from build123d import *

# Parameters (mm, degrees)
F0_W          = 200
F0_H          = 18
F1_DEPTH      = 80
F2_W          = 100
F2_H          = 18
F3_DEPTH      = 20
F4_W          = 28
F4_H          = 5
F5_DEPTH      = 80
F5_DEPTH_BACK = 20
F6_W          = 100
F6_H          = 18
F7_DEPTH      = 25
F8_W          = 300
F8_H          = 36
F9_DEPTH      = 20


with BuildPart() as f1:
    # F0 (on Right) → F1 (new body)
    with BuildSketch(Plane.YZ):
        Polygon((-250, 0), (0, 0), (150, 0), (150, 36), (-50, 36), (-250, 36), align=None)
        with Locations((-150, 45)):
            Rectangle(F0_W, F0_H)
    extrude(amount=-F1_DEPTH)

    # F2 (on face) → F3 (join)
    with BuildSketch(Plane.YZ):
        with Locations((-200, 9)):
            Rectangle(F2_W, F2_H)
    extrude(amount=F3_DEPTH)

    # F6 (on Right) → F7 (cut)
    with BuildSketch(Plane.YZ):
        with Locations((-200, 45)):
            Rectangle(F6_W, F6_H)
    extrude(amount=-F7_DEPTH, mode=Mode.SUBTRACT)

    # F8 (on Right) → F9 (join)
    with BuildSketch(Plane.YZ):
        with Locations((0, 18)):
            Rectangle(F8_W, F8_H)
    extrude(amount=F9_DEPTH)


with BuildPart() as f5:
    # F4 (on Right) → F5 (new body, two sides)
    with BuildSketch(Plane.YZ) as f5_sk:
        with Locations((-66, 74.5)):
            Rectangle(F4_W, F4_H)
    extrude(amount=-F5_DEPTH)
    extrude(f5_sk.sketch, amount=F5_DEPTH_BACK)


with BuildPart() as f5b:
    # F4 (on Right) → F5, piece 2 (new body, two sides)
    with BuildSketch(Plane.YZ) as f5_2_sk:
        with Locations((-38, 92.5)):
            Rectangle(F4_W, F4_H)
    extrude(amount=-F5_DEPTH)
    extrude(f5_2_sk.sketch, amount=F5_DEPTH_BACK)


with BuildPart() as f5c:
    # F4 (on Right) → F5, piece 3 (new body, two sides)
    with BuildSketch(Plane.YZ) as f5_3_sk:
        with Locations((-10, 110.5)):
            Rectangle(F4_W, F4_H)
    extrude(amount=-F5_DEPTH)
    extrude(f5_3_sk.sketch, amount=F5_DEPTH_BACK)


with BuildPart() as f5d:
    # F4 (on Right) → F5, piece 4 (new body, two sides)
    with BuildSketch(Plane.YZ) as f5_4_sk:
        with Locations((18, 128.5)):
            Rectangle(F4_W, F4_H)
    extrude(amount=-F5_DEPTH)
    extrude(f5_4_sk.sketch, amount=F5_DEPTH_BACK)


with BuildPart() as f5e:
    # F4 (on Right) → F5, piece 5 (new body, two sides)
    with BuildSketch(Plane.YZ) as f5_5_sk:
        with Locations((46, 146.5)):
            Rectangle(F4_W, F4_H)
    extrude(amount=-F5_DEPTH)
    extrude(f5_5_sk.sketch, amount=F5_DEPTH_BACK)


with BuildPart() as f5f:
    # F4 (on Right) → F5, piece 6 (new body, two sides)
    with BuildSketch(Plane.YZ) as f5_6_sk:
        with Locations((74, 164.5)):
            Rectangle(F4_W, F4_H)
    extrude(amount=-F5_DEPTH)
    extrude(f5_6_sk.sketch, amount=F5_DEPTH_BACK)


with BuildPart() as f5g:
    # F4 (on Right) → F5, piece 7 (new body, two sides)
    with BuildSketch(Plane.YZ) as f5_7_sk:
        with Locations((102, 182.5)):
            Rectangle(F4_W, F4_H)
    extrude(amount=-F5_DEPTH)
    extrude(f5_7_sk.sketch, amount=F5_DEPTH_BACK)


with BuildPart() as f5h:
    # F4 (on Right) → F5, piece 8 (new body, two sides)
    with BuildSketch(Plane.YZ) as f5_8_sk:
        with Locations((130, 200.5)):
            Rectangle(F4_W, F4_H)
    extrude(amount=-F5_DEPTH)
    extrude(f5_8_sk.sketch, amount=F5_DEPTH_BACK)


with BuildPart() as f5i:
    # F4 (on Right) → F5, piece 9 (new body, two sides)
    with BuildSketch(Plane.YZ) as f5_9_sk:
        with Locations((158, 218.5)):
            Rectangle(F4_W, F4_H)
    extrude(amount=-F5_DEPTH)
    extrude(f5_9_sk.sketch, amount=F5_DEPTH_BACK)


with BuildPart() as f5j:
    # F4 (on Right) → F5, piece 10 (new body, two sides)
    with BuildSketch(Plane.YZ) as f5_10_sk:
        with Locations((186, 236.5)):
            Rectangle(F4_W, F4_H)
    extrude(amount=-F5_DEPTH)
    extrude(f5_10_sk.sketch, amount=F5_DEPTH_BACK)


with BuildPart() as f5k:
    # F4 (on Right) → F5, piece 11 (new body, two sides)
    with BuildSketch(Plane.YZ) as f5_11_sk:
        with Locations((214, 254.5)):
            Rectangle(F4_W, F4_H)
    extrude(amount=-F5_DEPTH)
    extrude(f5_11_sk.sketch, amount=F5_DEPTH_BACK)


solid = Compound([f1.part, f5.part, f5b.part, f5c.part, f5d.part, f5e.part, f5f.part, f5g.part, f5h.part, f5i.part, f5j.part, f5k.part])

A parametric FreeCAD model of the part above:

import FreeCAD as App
import Part
import Sketcher

doc = App.newDocument("Part")
body = doc.addObject("PartDesign::Body", "Body")

# Sketch on YZ plane
sketch1 = body.newObject("Sketcher::SketchObject", "Sketch")
sketch1.AttachmentSupport = (doc.getObject("YZ_Plane"), [""])
sketch1.MapMode = "FlatFace"
sketch1.addGeometry([
    Part.LineSegment(App.Vector(-250, 0, 0), App.Vector(150, 0, 0)),  # 0
    Part.LineSegment(App.Vector(150, 0, 0), App.Vector(150, 36, 0)),  # 1
    Part.LineSegment(App.Vector(150, 36, 0), App.Vector(-50, 36, 0)),  # 2
    Part.LineSegment(App.Vector(-50, 36, 0), App.Vector(-50, 54, 0)),  # 3
    Part.LineSegment(App.Vector(-50, 54, 0), App.Vector(-250, 54, 0)),  # 4
    Part.LineSegment(App.Vector(-250, 54, 0), App.Vector(-250, 0, 0)),  # 5
], False)
sketch1.addConstraint([
    Sketcher.Constraint("Coincident", 0, 2, 1, 1),
    Sketcher.Constraint("Coincident", 1, 2, 2, 1),
    Sketcher.Constraint("Coincident", 2, 2, 3, 1),
    Sketcher.Constraint("Coincident", 3, 2, 4, 1),
    Sketcher.Constraint("Coincident", 4, 2, 5, 1),
    Sketcher.Constraint("Coincident", 5, 2, 0, 1),
    Sketcher.Constraint("Horizontal", 0),
    Sketcher.Constraint("Vertical", 1),
    Sketcher.Constraint("Horizontal", 2),
    Sketcher.Constraint("Vertical", 3),
    Sketcher.Constraint("Horizontal", 4),
    Sketcher.Constraint("Vertical", 5),
    Sketcher.Constraint("PointOnObject", 0, 2, -1),
    Sketcher.Constraint("Equal", 2, 4),
    Sketcher.Constraint("DistanceX", 0, 1, 0, 2, 400.0),
    Sketcher.Constraint("DistanceY", 1, 1, 1, 2, 36.0),
    Sketcher.Constraint("DistanceY", 3, 1, 3, 2, 18.0),
    Sketcher.Constraint("DistanceX", -1, 1, 0, 2, 150.0),
])
pad1 = body.newObject("PartDesign::Pad", "Pad")
pad1.Profile = sketch1
pad1.Length = 80
pad1.Reversed = True

# Sketch on YZ plane
sketch2 = body.newObject("Sketcher::SketchObject", "Sketch001")
sketch2.AttachmentSupport = (doc.getObject("YZ_Plane"), [""])
sketch2.MapMode = "FlatFace"
sketch2.addGeometry([
    Part.LineSegment(App.Vector(-250, 18, 0), App.Vector(-250, 0, 0)),
    Part.LineSegment(App.Vector(-250, 0, 0), App.Vector(-150, 0, 0)),
    Part.LineSegment(App.Vector(-150, 0, 0), App.Vector(-150, 18, 0)),
    Part.LineSegment(App.Vector(-150, 18, 0), App.Vector(-250, 18, 0)),
], False)
sketch2.addConstraint([
    Sketcher.Constraint("Coincident", 0, 2, 1, 1),
    Sketcher.Constraint("Coincident", 1, 2, 2, 1),
    Sketcher.Constraint("Coincident", 2, 2, 3, 1),
    Sketcher.Constraint("Coincident", 3, 2, 0, 1),
    Sketcher.Constraint("Vertical", 0),
    Sketcher.Constraint("Horizontal", 1),
    Sketcher.Constraint("Vertical", 2),
    Sketcher.Constraint("Horizontal", 3),
    Sketcher.Constraint("PointOnObject", 0, 2, -1),
    Sketcher.Constraint("DistanceX", 1, 1, 1, 2, 100.0),
    Sketcher.Constraint("DistanceY", 0, 2, 0, 1, 18.0),
    Sketcher.Constraint("DistanceX", 0, 2, -1, 1, 250.0),
])
pad2 = body.newObject("PartDesign::Pad", "Pad001")
pad2.Profile = sketch2
pad2.Length = 20

# Sketch on YZ plane
sketch3 = body.newObject("Sketcher::SketchObject", "Sketch002")
sketch3.AttachmentSupport = (doc.getObject("YZ_Plane"), [""])
sketch3.MapMode = "FlatFace"
sketch3.addGeometry([
    Part.LineSegment(App.Vector(-250, 54, 0), App.Vector(-250, 36, 0)),
    Part.LineSegment(App.Vector(-250, 36, 0), App.Vector(-150, 36, 0)),
    Part.LineSegment(App.Vector(-150, 36, 0), App.Vector(-150, 54, 0)),
    Part.LineSegment(App.Vector(-150, 54, 0), App.Vector(-250, 54, 0)),
], False)
sketch3.addConstraint([
    Sketcher.Constraint("Coincident", 0, 2, 1, 1),
    Sketcher.Constraint("Coincident", 1, 2, 2, 1),
    Sketcher.Constraint("Coincident", 2, 2, 3, 1),
    Sketcher.Constraint("Coincident", 3, 2, 0, 1),
    Sketcher.Constraint("Vertical", 0),
    Sketcher.Constraint("Horizontal", 1),
    Sketcher.Constraint("Vertical", 2),
    Sketcher.Constraint("Horizontal", 3),
    Sketcher.Constraint("DistanceX", 1, 1, 1, 2, 100.0),
    Sketcher.Constraint("DistanceY", 0, 2, 0, 1, 18.0),
    Sketcher.Constraint("DistanceX", 0, 2, -1, 1, 250.0),
    Sketcher.Constraint("DistanceY", -1, 1, 0, 2, 36.0),
])
pocket1 = body.newObject("PartDesign::Pocket", "Pocket")
pocket1.Profile = sketch3
pocket1.Length = 25

# Sketch on YZ plane
sketch4 = body.newObject("Sketcher::SketchObject", "Sketch003")
sketch4.AttachmentSupport = (doc.getObject("YZ_Plane"), [""])
sketch4.MapMode = "FlatFace"
sketch4.addGeometry([
    Part.LineSegment(App.Vector(-150, 36, 0), App.Vector(-150, 0, 0)),
    Part.LineSegment(App.Vector(-150, 0, 0), App.Vector(150, 0, 0)),
    Part.LineSegment(App.Vector(150, 0, 0), App.Vector(150, 36, 0)),
    Part.LineSegment(App.Vector(150, 36, 0), App.Vector(-150, 36, 0)),
], False)
sketch4.addConstraint([
    Sketcher.Constraint("Coincident", 0, 2, 1, 1),
    Sketcher.Constraint("Coincident", 1, 2, 2, 1),
    Sketcher.Constraint("Coincident", 2, 2, 3, 1),
    Sketcher.Constraint("Coincident", 3, 2, 0, 1),
    Sketcher.Constraint("Vertical", 0),
    Sketcher.Constraint("Horizontal", 1),
    Sketcher.Constraint("Vertical", 2),
    Sketcher.Constraint("Horizontal", 3),
    Sketcher.Constraint("Symmetric", 0, 2, 1, 2, -1, 1),
    Sketcher.Constraint("DistanceX", 1, 1, 1, 2, 300.0),
    Sketcher.Constraint("DistanceY", 0, 2, 0, 1, 36.0),
])
pad3 = body.newObject("PartDesign::Pad", "Pad002")
pad3.Profile = sketch4
pad3.Length = 20
body2 = doc.addObject("PartDesign::Body", "Body001")

# Sketch on YZ plane
sketch5 = body2.newObject("Sketcher::SketchObject", "Sketch004")
sketch5.AttachmentSupport = (doc.getObject("YZ_Plane001"), [""])
sketch5.MapMode = "FlatFace"
sketch5.addGeometry([
    Part.LineSegment(App.Vector(-80, 77, 0), App.Vector(-80, 72, 0)),
    Part.LineSegment(App.Vector(-80, 72, 0), App.Vector(-52, 72, 0)),
    Part.LineSegment(App.Vector(-52, 72, 0), App.Vector(-52, 77, 0)),
    Part.LineSegment(App.Vector(-52, 77, 0), App.Vector(-80, 77, 0)),
], False)
sketch5.addConstraint([
    Sketcher.Constraint("Coincident", 0, 2, 1, 1),
    Sketcher.Constraint("Coincident", 1, 2, 2, 1),
    Sketcher.Constraint("Coincident", 2, 2, 3, 1),
    Sketcher.Constraint("Coincident", 3, 2, 0, 1),
    Sketcher.Constraint("Vertical", 0),
    Sketcher.Constraint("Horizontal", 1),
    Sketcher.Constraint("Vertical", 2),
    Sketcher.Constraint("Horizontal", 3),
    Sketcher.Constraint("DistanceX", 1, 1, 1, 2, 28.0),
    Sketcher.Constraint("DistanceY", 0, 2, 0, 1, 5.0),
    Sketcher.Constraint("DistanceX", 0, 2, -1, 1, 80.0),
    Sketcher.Constraint("DistanceY", -1, 1, 0, 2, 72.0),
])
pad4 = body2.newObject("PartDesign::Pad", "Pad003")
pad4.Profile = sketch5
pad4.Type = "TwoLengths"
pad4.Length = 80
pad4.Length2 = 20
pad4.Reversed = True
body3 = doc.addObject("PartDesign::Body", "Body002")

# Sketch on YZ plane
sketch6 = body3.newObject("Sketcher::SketchObject", "Sketch005")
sketch6.AttachmentSupport = (doc.getObject("YZ_Plane002"), [""])
sketch6.MapMode = "FlatFace"
sketch6.addGeometry([
    Part.LineSegment(App.Vector(-52, 95, 0), App.Vector(-52, 90, 0)),
    Part.LineSegment(App.Vector(-52, 90, 0), App.Vector(-24, 90, 0)),
    Part.LineSegment(App.Vector(-24, 90, 0), App.Vector(-24, 95, 0)),
    Part.LineSegment(App.Vector(-24, 95, 0), App.Vector(-52, 95, 0)),
], False)
sketch6.addConstraint([
    Sketcher.Constraint("Coincident", 0, 2, 1, 1),
    Sketcher.Constraint("Coincident", 1, 2, 2, 1),
    Sketcher.Constraint("Coincident", 2, 2, 3, 1),
    Sketcher.Constraint("Coincident", 3, 2, 0, 1),
    Sketcher.Constraint("Vertical", 0),
    Sketcher.Constraint("Horizontal", 1),
    Sketcher.Constraint("Vertical", 2),
    Sketcher.Constraint("Horizontal", 3),
    Sketcher.Constraint("DistanceX", 1, 1, 1, 2, 28.0),
    Sketcher.Constraint("DistanceY", 0, 2, 0, 1, 5.0),
    Sketcher.Constraint("DistanceX", 0, 2, -1, 1, 52.0),
    Sketcher.Constraint("DistanceY", -1, 1, 0, 2, 90.0),
])
pad5 = body3.newObject("PartDesign::Pad", "Pad004")
pad5.Profile = sketch6
pad5.Type = "TwoLengths"
pad5.Length = 80
pad5.Length2 = 20
pad5.Reversed = True
body4 = doc.addObject("PartDesign::Body", "Body003")

# Sketch on YZ plane
sketch7 = body4.newObject("Sketcher::SketchObject", "Sketch006")
sketch7.AttachmentSupport = (doc.getObject("YZ_Plane003"), [""])
sketch7.MapMode = "FlatFace"
sketch7.addGeometry([
    Part.LineSegment(App.Vector(-24, 113, 0), App.Vector(-24, 108, 0)),
    Part.LineSegment(App.Vector(-24, 108, 0), App.Vector(4, 108, 0)),
    Part.LineSegment(App.Vector(4, 108, 0), App.Vector(4, 113, 0)),
    Part.LineSegment(App.Vector(4, 113, 0), App.Vector(-24, 113, 0)),
], False)
sketch7.addConstraint([
    Sketcher.Constraint("Coincident", 0, 2, 1, 1),
    Sketcher.Constraint("Coincident", 1, 2, 2, 1),
    Sketcher.Constraint("Coincident", 2, 2, 3, 1),
    Sketcher.Constraint("Coincident", 3, 2, 0, 1),
    Sketcher.Constraint("Vertical", 0),
    Sketcher.Constraint("Horizontal", 1),
    Sketcher.Constraint("Vertical", 2),
    Sketcher.Constraint("Horizontal", 3),
    Sketcher.Constraint("DistanceX", 1, 1, 1, 2, 28.0),
    Sketcher.Constraint("DistanceY", 0, 2, 0, 1, 5.0),
    Sketcher.Constraint("DistanceX", 0, 2, -1, 1, 24.0),
    Sketcher.Constraint("DistanceY", -1, 1, 0, 2, 108.0),
])
pad6 = body4.newObject("PartDesign::Pad", "Pad005")
pad6.Profile = sketch7
pad6.Type = "TwoLengths"
pad6.Length = 80
pad6.Length2 = 20
pad6.Reversed = True
body5 = doc.addObject("PartDesign::Body", "Body004")

# Sketch on YZ plane
sketch8 = body5.newObject("Sketcher::SketchObject", "Sketch007")
sketch8.AttachmentSupport = (doc.getObject("YZ_Plane004"), [""])
sketch8.MapMode = "FlatFace"
sketch8.addGeometry([
    Part.LineSegment(App.Vector(4, 131, 0), App.Vector(4, 126, 0)),
    Part.LineSegment(App.Vector(4, 126, 0), App.Vector(32, 126, 0)),
    Part.LineSegment(App.Vector(32, 126, 0), App.Vector(32, 131, 0)),
    Part.LineSegment(App.Vector(32, 131, 0), App.Vector(4, 131, 0)),
], False)
sketch8.addConstraint([
    Sketcher.Constraint("Coincident", 0, 2, 1, 1),
    Sketcher.Constraint("Coincident", 1, 2, 2, 1),
    Sketcher.Constraint("Coincident", 2, 2, 3, 1),
    Sketcher.Constraint("Coincident", 3, 2, 0, 1),
    Sketcher.Constraint("Vertical", 0),
    Sketcher.Constraint("Horizontal", 1),
    Sketcher.Constraint("Vertical", 2),
    Sketcher.Constraint("Horizontal", 3),
    Sketcher.Constraint("DistanceX", 1, 1, 1, 2, 28.0),
    Sketcher.Constraint("DistanceY", 0, 2, 0, 1, 5.0),
    Sketcher.Constraint("DistanceX", -1, 1, 0, 2, 4.0),
    Sketcher.Constraint("DistanceY", -1, 1, 0, 2, 126.0),
])
pad7 = body5.newObject("PartDesign::Pad", "Pad006")
pad7.Profile = sketch8
pad7.Type = "TwoLengths"
pad7.Length = 80
pad7.Length2 = 20
pad7.Reversed = True
body6 = doc.addObject("PartDesign::Body", "Body005")

# Sketch on YZ plane
sketch9 = body6.newObject("Sketcher::SketchObject", "Sketch008")
sketch9.AttachmentSupport = (doc.getObject("YZ_Plane005"), [""])
sketch9.MapMode = "FlatFace"
sketch9.addGeometry([
    Part.LineSegment(App.Vector(32, 149, 0), App.Vector(32, 144, 0)),
    Part.LineSegment(App.Vector(32, 144, 0), App.Vector(60, 144, 0)),
    Part.LineSegment(App.Vector(60, 144, 0), App.Vector(60, 149, 0)),
    Part.LineSegment(App.Vector(60, 149, 0), App.Vector(32, 149, 0)),
], False)
sketch9.addConstraint([
    Sketcher.Constraint("Coincident", 0, 2, 1, 1),
    Sketcher.Constraint("Coincident", 1, 2, 2, 1),
    Sketcher.Constraint("Coincident", 2, 2, 3, 1),
    Sketcher.Constraint("Coincident", 3, 2, 0, 1),
    Sketcher.Constraint("Vertical", 0),
    Sketcher.Constraint("Horizontal", 1),
    Sketcher.Constraint("Vertical", 2),
    Sketcher.Constraint("Horizontal", 3),
    Sketcher.Constraint("DistanceX", 1, 1, 1, 2, 28.0),
    Sketcher.Constraint("DistanceY", 0, 2, 0, 1, 5.0),
    Sketcher.Constraint("DistanceX", -1, 1, 0, 2, 32.0),
    Sketcher.Constraint("DistanceY", -1, 1, 0, 2, 144.0),
])
pad8 = body6.newObject("PartDesign::Pad", "Pad007")
pad8.Profile = sketch9
pad8.Type = "TwoLengths"
pad8.Length = 80
pad8.Length2 = 20
pad8.Reversed = True
body7 = doc.addObject("PartDesign::Body", "Body006")

# Sketch on YZ plane
sketch10 = body7.newObject("Sketcher::SketchObject", "Sketch009")
sketch10.AttachmentSupport = (doc.getObject("YZ_Plane006"), [""])
sketch10.MapMode = "FlatFace"
sketch10.addGeometry([
    Part.LineSegment(App.Vector(60, 167, 0), App.Vector(60, 162, 0)),
    Part.LineSegment(App.Vector(60, 162, 0), App.Vector(88, 162, 0)),
    Part.LineSegment(App.Vector(88, 162, 0), App.Vector(88, 167, 0)),
    Part.LineSegment(App.Vector(88, 167, 0), App.Vector(60, 167, 0)),
], False)
sketch10.addConstraint([
    Sketcher.Constraint("Coincident", 0, 2, 1, 1),
    Sketcher.Constraint("Coincident", 1, 2, 2, 1),
    Sketcher.Constraint("Coincident", 2, 2, 3, 1),
    Sketcher.Constraint("Coincident", 3, 2, 0, 1),
    Sketcher.Constraint("Vertical", 0),
    Sketcher.Constraint("Horizontal", 1),
    Sketcher.Constraint("Vertical", 2),
    Sketcher.Constraint("Horizontal", 3),
    Sketcher.Constraint("DistanceX", 1, 1, 1, 2, 28.0),
    Sketcher.Constraint("DistanceY", 0, 2, 0, 1, 5.0),
    Sketcher.Constraint("DistanceX", -1, 1, 0, 2, 60.0),
    Sketcher.Constraint("DistanceY", -1, 1, 0, 2, 162.0),
])
pad9 = body7.newObject("PartDesign::Pad", "Pad008")
pad9.Profile = sketch10
pad9.Type = "TwoLengths"
pad9.Length = 80
pad9.Length2 = 20
pad9.Reversed = True
body8 = doc.addObject("PartDesign::Body", "Body007")

# Sketch on YZ plane
sketch11 = body8.newObject("Sketcher::SketchObject", "Sketch010")
sketch11.AttachmentSupport = (doc.getObject("YZ_Plane007"), [""])
sketch11.MapMode = "FlatFace"
sketch11.addGeometry([
    Part.LineSegment(App.Vector(88, 185, 0), App.Vector(88, 180, 0)),
    Part.LineSegment(App.Vector(88, 180, 0), App.Vector(116, 180, 0)),
    Part.LineSegment(App.Vector(116, 180, 0), App.Vector(116, 185, 0)),
    Part.LineSegment(App.Vector(116, 185, 0), App.Vector(88, 185, 0)),
], False)
sketch11.addConstraint([
    Sketcher.Constraint("Coincident", 0, 2, 1, 1),
    Sketcher.Constraint("Coincident", 1, 2, 2, 1),
    Sketcher.Constraint("Coincident", 2, 2, 3, 1),
    Sketcher.Constraint("Coincident", 3, 2, 0, 1),
    Sketcher.Constraint("Vertical", 0),
    Sketcher.Constraint("Horizontal", 1),
    Sketcher.Constraint("Vertical", 2),
    Sketcher.Constraint("Horizontal", 3),
    Sketcher.Constraint("DistanceX", 1, 1, 1, 2, 28.0),
    Sketcher.Constraint("DistanceY", 0, 2, 0, 1, 5.0),
    Sketcher.Constraint("DistanceX", -1, 1, 0, 2, 88.0),
    Sketcher.Constraint("DistanceY", -1, 1, 0, 2, 180.0),
])
pad10 = body8.newObject("PartDesign::Pad", "Pad009")
pad10.Profile = sketch11
pad10.Type = "TwoLengths"
pad10.Length = 80
pad10.Length2 = 20
pad10.Reversed = True
body9 = doc.addObject("PartDesign::Body", "Body008")

# Sketch on YZ plane
sketch12 = body9.newObject("Sketcher::SketchObject", "Sketch011")
sketch12.AttachmentSupport = (doc.getObject("YZ_Plane008"), [""])
sketch12.MapMode = "FlatFace"
sketch12.addGeometry([
    Part.LineSegment(App.Vector(116, 203, 0), App.Vector(116, 198, 0)),
    Part.LineSegment(App.Vector(116, 198, 0), App.Vector(144, 198, 0)),
    Part.LineSegment(App.Vector(144, 198, 0), App.Vector(144, 203, 0)),
    Part.LineSegment(App.Vector(144, 203, 0), App.Vector(116, 203, 0)),
], False)
sketch12.addConstraint([
    Sketcher.Constraint("Coincident", 0, 2, 1, 1),
    Sketcher.Constraint("Coincident", 1, 2, 2, 1),
    Sketcher.Constraint("Coincident", 2, 2, 3, 1),
    Sketcher.Constraint("Coincident", 3, 2, 0, 1),
    Sketcher.Constraint("Vertical", 0),
    Sketcher.Constraint("Horizontal", 1),
    Sketcher.Constraint("Vertical", 2),
    Sketcher.Constraint("Horizontal", 3),
    Sketcher.Constraint("DistanceX", 1, 1, 1, 2, 28.0),
    Sketcher.Constraint("DistanceY", 0, 2, 0, 1, 5.0),
    Sketcher.Constraint("DistanceX", -1, 1, 0, 2, 116.0),
    Sketcher.Constraint("DistanceY", -1, 1, 0, 2, 198.0),
])
pad11 = body9.newObject("PartDesign::Pad", "Pad010")
pad11.Profile = sketch12
pad11.Type = "TwoLengths"
pad11.Length = 80
pad11.Length2 = 20
pad11.Reversed = True
body10 = doc.addObject("PartDesign::Body", "Body009")

# Sketch on YZ plane
sketch13 = body10.newObject("Sketcher::SketchObject", "Sketch012")
sketch13.AttachmentSupport = (doc.getObject("YZ_Plane009"), [""])
sketch13.MapMode = "FlatFace"
sketch13.addGeometry([
    Part.LineSegment(App.Vector(144, 221, 0), App.Vector(144, 216, 0)),
    Part.LineSegment(App.Vector(144, 216, 0), App.Vector(172, 216, 0)),
    Part.LineSegment(App.Vector(172, 216, 0), App.Vector(172, 221, 0)),
    Part.LineSegment(App.Vector(172, 221, 0), App.Vector(144, 221, 0)),
], False)
sketch13.addConstraint([
    Sketcher.Constraint("Coincident", 0, 2, 1, 1),
    Sketcher.Constraint("Coincident", 1, 2, 2, 1),
    Sketcher.Constraint("Coincident", 2, 2, 3, 1),
    Sketcher.Constraint("Coincident", 3, 2, 0, 1),
    Sketcher.Constraint("Vertical", 0),
    Sketcher.Constraint("Horizontal", 1),
    Sketcher.Constraint("Vertical", 2),
    Sketcher.Constraint("Horizontal", 3),
    Sketcher.Constraint("DistanceX", 1, 1, 1, 2, 28.0),
    Sketcher.Constraint("DistanceY", 0, 2, 0, 1, 5.0),
    Sketcher.Constraint("DistanceX", -1, 1, 0, 2, 144.0),
    Sketcher.Constraint("DistanceY", -1, 1, 0, 2, 216.0),
])
pad12 = body10.newObject("PartDesign::Pad", "Pad011")
pad12.Profile = sketch13
pad12.Type = "TwoLengths"
pad12.Length = 80
pad12.Length2 = 20
pad12.Reversed = True
body11 = doc.addObject("PartDesign::Body", "Body010")

# Sketch on YZ plane
sketch14 = body11.newObject("Sketcher::SketchObject", "Sketch013")
sketch14.AttachmentSupport = (doc.getObject("YZ_Plane010"), [""])
sketch14.MapMode = "FlatFace"
sketch14.addGeometry([
    Part.LineSegment(App.Vector(172, 239, 0), App.Vector(172, 234, 0)),
    Part.LineSegment(App.Vector(172, 234, 0), App.Vector(200, 234, 0)),
    Part.LineSegment(App.Vector(200, 234, 0), App.Vector(200, 239, 0)),
    Part.LineSegment(App.Vector(200, 239, 0), App.Vector(172, 239, 0)),
], False)
sketch14.addConstraint([
    Sketcher.Constraint("Coincident", 0, 2, 1, 1),
    Sketcher.Constraint("Coincident", 1, 2, 2, 1),
    Sketcher.Constraint("Coincident", 2, 2, 3, 1),
    Sketcher.Constraint("Coincident", 3, 2, 0, 1),
    Sketcher.Constraint("Vertical", 0),
    Sketcher.Constraint("Horizontal", 1),
    Sketcher.Constraint("Vertical", 2),
    Sketcher.Constraint("Horizontal", 3),
    Sketcher.Constraint("DistanceX", 1, 1, 1, 2, 28.0),
    Sketcher.Constraint("DistanceY", 0, 2, 0, 1, 5.0),
    Sketcher.Constraint("DistanceX", -1, 1, 0, 2, 172.0),
    Sketcher.Constraint("DistanceY", -1, 1, 0, 2, 234.0),
])
pad13 = body11.newObject("PartDesign::Pad", "Pad012")
pad13.Profile = sketch14
pad13.Type = "TwoLengths"
pad13.Length = 80
pad13.Length2 = 20
pad13.Reversed = True
body12 = doc.addObject("PartDesign::Body", "Body011")

# Sketch on YZ plane
sketch15 = body12.newObject("Sketcher::SketchObject", "Sketch014")
sketch15.AttachmentSupport = (doc.getObject("YZ_Plane011"), [""])
sketch15.MapMode = "FlatFace"
sketch15.addGeometry([
    Part.LineSegment(App.Vector(200, 257, 0), App.Vector(200, 252, 0)),
    Part.LineSegment(App.Vector(200, 252, 0), App.Vector(228, 252, 0)),
    Part.LineSegment(App.Vector(228, 252, 0), App.Vector(228, 257, 0)),
    Part.LineSegment(App.Vector(228, 257, 0), App.Vector(200, 257, 0)),
], False)
sketch15.addConstraint([
    Sketcher.Constraint("Coincident", 0, 2, 1, 1),
    Sketcher.Constraint("Coincident", 1, 2, 2, 1),
    Sketcher.Constraint("Coincident", 2, 2, 3, 1),
    Sketcher.Constraint("Coincident", 3, 2, 0, 1),
    Sketcher.Constraint("Vertical", 0),
    Sketcher.Constraint("Horizontal", 1),
    Sketcher.Constraint("Vertical", 2),
    Sketcher.Constraint("Horizontal", 3),
    Sketcher.Constraint("DistanceX", 1, 1, 1, 2, 28.0),
    Sketcher.Constraint("DistanceY", 0, 2, 0, 1, 5.0),
    Sketcher.Constraint("DistanceX", -1, 1, 0, 2, 200.0),
    Sketcher.Constraint("DistanceY", -1, 1, 0, 2, 252.0),
])
pad14 = body12.newObject("PartDesign::Pad", "Pad013")
pad14.Profile = sketch15
pad14.Type = "TwoLengths"
pad14.Length = 80
pad14.Length2 = 20
pad14.Reversed = True

doc.recompute()
